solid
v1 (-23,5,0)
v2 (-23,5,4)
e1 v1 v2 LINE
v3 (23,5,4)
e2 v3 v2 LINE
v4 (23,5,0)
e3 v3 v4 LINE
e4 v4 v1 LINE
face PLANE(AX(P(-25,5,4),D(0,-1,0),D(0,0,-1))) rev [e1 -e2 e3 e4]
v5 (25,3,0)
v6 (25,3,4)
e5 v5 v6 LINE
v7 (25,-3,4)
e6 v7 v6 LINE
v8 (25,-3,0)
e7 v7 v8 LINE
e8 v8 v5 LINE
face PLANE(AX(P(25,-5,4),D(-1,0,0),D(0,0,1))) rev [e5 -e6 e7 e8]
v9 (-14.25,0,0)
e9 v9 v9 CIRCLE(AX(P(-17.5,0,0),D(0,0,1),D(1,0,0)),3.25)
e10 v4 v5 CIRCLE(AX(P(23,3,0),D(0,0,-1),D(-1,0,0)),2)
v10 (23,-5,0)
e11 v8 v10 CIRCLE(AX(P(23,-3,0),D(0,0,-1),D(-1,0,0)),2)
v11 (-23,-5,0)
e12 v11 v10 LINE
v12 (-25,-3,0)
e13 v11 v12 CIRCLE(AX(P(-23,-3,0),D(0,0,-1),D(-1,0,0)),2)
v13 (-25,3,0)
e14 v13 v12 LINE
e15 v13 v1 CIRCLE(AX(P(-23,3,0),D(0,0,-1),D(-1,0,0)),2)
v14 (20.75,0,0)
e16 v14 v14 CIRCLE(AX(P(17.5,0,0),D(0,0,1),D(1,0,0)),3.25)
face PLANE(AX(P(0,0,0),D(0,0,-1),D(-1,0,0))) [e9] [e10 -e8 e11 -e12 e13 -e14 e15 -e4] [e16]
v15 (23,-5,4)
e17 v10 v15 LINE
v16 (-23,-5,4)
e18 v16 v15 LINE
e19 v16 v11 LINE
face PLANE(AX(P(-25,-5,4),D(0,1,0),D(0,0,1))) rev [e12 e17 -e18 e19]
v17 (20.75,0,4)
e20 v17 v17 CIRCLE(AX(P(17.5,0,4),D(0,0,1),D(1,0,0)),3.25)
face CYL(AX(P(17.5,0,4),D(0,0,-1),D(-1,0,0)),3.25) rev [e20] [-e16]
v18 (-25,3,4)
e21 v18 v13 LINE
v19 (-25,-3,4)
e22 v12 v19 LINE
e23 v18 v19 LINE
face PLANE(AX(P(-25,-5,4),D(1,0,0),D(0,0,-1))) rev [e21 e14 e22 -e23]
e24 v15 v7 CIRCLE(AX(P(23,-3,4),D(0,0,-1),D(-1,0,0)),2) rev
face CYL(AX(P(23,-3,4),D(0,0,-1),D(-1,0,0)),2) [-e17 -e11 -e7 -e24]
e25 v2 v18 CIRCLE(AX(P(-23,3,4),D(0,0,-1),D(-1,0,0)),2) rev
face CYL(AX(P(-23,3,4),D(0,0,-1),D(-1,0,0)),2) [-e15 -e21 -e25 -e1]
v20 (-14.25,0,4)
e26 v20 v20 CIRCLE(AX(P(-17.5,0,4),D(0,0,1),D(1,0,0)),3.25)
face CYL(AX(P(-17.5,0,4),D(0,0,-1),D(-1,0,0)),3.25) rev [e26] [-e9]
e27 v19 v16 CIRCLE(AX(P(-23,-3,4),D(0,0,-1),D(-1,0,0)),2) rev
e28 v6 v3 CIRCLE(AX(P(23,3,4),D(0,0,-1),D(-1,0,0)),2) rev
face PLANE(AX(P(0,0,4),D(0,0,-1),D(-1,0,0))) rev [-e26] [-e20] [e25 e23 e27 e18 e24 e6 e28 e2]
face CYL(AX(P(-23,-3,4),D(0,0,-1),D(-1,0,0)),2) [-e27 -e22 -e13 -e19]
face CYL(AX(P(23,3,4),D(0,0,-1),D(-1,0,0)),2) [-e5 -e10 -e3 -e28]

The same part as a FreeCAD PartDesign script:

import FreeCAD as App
import Part
import Sketcher
from FreeCAD import Vector
Q = App.Units.Quantity


def edges_at(feature, points):
    """Names of the edges that pass closest to the given points."""
    edges = feature.Shape.Edges
    near = lambda p: min(range(len(edges)), key=lambda i: edges[i].distToShape(Part.Vertex(*p))[0])
    return sorted({f"Edge{near(p) + 1}" for p in points})

doc = App.newDocument("Part")
body = doc.addObject("PartDesign::Body", "Body")

sketch1 = body.newObject("Sketcher::SketchObject", "Sketch")
sketch1.AttachmentSupport = (doc.getObject("XY_Plane"), [""])
sketch1.MapMode = "FlatFace"
sketch1.addGeometry([
    Part.LineSegment(Vector(-25, 5, 0), Vector(-25, -5, 0)),
    Part.LineSegment(Vector(-25, -5, 0), Vector(25, -5, 0)),
    Part.LineSegment(Vector(25, -5, 0), Vector(25, 5, 0)),
    Part.LineSegment(Vector(25, 5, 0), Vector(-25, 5, 0)),
    Part.Circle(Vector(-17.5, 0, 0), Vector(0, 0, 1), 3.2),
    Part.Circle(Vector(17.5, 0, 0), Vector(0, 0, 1), 3.2),
], False)
sketch1.addConstraint([
    Sketcher.Constraint("Coincident", 0, 2, 1, 1),
    Sketcher.Constraint("Coincident", 1, 2, 2, 1),
    Sketcher.Constraint("Coincident", 2, 2, 3, 1),
    Sketcher.Constraint("Coincident", 3, 2, 0, 1),
    Sketcher.Constraint("Vertical", 0),
    Sketcher.Constraint("Horizontal", 1),
    Sketcher.Constraint("Vertical", 2),
    Sketcher.Constraint("Horizontal", 3),
    Sketcher.Constraint("Equal", 4, 5),
    Sketcher.Constraint("Symmetric", 4, 3, 5, 3, -1, 1),
    Sketcher.Constraint("Symmetric", 0, 2, 2, 2, -1, 1),
    Sketcher.Constraint("PointOnObject", 4, 3, -1),
    Sketcher.Constraint("Diameter", 4, Q("6.5 mm")),
    Sketcher.Constraint("DistanceX", 1, 1, 1, 2, Q("50 mm")),
    Sketcher.Constraint("DistanceY", 0, 2, 0, 1, Q("10 mm")),
    Sketcher.Constraint("DistanceX", 4, 3, 5, 3, Q("35 mm")),
])
pad1 = body.newObject("PartDesign::Pad", "Pad")
pad1.Profile = sketch1
pad1.Length = 4
doc.recompute()

fillet = body.newObject("PartDesign::Fillet", "Fillet")
fillet.Base = (pad1, edges_at(pad1, [
    (-25, 5, 2),
    (25, 5, 2),
    (25, -5, 2),
    (-25, -5, 2),
]))
fillet.Radius = 2

doc.recompute()
